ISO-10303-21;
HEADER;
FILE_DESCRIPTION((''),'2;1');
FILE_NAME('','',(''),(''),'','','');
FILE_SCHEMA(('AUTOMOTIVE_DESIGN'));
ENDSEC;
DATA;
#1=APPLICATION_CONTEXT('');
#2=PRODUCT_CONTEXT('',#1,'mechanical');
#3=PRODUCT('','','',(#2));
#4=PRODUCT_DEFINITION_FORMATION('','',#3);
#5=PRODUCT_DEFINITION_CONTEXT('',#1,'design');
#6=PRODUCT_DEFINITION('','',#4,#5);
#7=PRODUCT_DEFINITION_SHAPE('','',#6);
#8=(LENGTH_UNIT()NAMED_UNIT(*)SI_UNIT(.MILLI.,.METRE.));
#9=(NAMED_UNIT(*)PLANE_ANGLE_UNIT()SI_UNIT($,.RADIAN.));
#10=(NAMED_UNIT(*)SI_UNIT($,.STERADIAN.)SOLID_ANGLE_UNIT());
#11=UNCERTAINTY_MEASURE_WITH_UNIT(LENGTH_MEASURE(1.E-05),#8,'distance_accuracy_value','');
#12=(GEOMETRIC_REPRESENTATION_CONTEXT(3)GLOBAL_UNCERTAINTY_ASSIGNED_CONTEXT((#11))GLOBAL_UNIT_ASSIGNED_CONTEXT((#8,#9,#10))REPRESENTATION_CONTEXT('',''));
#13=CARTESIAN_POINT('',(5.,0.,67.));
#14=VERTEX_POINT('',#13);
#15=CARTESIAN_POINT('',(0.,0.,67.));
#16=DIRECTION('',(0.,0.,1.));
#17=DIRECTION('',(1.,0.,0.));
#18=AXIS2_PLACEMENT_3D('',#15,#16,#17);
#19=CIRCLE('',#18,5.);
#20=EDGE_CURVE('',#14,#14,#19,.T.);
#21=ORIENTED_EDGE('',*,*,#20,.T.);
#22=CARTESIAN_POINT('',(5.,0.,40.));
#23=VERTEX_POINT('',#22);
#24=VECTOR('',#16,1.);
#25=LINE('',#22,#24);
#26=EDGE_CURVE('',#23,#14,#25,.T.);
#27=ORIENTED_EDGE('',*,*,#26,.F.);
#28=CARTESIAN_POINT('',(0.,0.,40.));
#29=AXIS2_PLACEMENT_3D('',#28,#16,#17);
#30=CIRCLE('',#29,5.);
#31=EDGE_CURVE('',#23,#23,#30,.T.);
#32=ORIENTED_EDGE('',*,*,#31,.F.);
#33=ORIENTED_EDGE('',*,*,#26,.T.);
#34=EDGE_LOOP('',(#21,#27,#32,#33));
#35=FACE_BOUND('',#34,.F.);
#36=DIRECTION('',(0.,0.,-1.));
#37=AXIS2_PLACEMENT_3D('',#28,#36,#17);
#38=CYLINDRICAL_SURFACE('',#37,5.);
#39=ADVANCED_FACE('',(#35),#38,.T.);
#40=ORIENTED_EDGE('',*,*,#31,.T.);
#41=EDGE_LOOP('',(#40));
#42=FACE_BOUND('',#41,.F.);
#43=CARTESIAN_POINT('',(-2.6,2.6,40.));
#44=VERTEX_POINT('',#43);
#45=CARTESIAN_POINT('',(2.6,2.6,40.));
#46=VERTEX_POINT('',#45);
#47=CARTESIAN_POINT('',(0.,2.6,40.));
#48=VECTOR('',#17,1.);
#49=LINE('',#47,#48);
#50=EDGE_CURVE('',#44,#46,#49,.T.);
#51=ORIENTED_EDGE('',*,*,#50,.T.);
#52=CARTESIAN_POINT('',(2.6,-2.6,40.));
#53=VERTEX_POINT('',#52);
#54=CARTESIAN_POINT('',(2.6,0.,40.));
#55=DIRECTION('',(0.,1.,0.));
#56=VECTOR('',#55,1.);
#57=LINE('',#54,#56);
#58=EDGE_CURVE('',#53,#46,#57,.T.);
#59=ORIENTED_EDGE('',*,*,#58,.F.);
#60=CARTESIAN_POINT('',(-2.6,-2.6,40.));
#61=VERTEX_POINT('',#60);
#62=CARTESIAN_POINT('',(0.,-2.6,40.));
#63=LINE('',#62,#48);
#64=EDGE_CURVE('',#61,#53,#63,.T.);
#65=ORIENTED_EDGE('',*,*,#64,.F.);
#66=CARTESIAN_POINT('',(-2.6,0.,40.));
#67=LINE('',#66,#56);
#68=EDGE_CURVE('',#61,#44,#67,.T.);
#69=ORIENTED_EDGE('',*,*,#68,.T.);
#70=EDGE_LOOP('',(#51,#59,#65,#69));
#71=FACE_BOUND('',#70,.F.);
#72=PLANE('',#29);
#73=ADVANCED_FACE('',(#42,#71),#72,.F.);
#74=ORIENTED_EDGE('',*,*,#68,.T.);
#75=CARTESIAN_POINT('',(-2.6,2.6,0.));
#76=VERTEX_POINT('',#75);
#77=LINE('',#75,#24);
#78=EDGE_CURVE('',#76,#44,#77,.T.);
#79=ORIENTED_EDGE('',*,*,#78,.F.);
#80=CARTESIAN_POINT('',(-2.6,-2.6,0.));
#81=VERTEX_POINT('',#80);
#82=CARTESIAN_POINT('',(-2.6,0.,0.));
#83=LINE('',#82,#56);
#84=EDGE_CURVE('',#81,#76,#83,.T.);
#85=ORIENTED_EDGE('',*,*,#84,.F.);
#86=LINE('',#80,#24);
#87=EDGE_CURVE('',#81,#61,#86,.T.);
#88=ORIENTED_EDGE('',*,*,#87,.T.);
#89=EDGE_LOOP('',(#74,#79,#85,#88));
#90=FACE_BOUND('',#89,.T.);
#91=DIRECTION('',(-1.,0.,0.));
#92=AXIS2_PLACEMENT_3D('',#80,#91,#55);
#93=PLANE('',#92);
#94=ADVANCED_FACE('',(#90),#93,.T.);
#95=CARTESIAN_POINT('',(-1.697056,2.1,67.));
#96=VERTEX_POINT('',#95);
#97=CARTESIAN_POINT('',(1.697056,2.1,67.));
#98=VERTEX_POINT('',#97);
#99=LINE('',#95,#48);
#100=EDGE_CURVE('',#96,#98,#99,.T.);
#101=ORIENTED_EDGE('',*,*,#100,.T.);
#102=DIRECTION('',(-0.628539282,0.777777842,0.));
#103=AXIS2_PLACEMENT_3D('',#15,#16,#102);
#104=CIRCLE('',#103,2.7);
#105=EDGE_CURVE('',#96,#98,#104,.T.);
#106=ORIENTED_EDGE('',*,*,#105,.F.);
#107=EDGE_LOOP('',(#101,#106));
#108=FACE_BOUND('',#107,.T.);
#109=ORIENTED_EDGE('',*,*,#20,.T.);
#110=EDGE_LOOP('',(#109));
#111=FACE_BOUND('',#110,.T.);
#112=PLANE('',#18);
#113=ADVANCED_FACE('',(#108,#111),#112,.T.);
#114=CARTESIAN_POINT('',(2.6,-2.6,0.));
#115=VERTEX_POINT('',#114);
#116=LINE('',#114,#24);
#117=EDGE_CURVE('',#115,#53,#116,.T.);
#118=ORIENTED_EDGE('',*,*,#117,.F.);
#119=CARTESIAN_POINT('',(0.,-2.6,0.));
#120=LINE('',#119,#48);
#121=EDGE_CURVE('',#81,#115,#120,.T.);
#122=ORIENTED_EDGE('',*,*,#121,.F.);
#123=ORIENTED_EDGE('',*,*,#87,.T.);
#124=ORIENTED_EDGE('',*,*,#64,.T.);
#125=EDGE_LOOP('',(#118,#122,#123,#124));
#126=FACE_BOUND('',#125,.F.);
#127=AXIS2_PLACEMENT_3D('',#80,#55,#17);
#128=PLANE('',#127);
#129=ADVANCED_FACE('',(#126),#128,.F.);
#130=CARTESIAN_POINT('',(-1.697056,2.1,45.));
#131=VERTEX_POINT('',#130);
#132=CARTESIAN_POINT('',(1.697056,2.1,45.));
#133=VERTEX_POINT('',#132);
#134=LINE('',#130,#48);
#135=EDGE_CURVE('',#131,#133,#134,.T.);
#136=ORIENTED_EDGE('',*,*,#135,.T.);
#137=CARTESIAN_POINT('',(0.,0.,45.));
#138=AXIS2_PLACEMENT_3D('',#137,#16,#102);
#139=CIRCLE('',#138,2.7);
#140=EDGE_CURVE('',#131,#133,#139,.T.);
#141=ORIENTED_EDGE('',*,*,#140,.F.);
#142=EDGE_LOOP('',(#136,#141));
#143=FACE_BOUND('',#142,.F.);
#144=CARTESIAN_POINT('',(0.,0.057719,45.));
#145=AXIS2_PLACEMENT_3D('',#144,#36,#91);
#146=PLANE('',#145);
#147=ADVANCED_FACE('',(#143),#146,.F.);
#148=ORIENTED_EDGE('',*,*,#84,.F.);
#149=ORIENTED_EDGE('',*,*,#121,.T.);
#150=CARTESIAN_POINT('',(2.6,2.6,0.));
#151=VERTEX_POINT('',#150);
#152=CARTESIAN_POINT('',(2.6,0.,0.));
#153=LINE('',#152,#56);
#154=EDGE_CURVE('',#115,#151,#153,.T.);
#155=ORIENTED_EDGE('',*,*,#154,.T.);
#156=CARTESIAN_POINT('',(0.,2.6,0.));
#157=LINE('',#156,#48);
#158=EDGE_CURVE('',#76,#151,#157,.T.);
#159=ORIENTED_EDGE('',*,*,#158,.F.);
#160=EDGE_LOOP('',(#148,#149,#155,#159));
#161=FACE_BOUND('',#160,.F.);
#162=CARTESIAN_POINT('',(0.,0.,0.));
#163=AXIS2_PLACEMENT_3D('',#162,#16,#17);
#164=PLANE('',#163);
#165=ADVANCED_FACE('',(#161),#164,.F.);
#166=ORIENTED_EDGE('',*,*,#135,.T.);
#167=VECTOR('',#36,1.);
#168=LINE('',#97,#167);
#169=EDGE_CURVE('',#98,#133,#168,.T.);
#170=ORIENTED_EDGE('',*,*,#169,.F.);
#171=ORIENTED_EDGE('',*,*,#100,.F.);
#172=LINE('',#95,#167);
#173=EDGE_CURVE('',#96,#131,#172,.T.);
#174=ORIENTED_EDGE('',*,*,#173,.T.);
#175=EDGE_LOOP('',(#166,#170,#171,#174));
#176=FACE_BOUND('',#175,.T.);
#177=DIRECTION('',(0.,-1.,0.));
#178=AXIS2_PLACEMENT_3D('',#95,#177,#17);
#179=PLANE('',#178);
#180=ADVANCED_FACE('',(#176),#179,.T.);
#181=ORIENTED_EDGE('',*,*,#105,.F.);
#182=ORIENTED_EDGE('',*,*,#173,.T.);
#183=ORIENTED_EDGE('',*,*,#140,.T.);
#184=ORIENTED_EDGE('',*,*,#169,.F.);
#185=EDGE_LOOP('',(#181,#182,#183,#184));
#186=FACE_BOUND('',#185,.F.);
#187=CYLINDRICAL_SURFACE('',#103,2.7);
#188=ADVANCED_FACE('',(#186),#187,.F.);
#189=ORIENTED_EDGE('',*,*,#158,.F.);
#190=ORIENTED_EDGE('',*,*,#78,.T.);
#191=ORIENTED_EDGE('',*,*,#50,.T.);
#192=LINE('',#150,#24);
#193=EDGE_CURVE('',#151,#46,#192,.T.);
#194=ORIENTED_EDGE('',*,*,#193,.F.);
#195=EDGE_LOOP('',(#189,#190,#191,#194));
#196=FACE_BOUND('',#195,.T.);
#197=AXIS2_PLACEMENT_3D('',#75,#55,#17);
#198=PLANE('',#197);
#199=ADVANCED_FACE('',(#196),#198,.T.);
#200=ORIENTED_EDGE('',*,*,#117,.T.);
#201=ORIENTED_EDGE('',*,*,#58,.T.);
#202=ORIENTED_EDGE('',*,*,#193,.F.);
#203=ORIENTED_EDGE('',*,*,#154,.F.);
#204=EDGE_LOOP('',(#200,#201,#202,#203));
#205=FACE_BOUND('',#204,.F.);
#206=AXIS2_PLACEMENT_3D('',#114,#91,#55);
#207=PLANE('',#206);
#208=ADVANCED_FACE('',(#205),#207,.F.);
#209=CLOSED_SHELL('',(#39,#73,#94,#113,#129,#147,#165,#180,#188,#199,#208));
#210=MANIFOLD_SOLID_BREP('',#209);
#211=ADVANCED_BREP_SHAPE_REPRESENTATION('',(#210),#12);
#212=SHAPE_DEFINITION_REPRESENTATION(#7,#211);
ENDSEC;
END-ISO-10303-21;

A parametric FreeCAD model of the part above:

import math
import FreeCAD as App
import Part
import Sketcher
from FreeCAD import Vector

doc = App.newDocument("Part")
body = doc.addObject("PartDesign::Body", "Body")

# Sketch on XY plane
sketch1 = body.newObject("Sketcher::SketchObject", "Sketch")
sketch1.AttachmentSupport = (doc.getObject("XY_Plane"), [""])
sketch1.MapMode = "FlatFace"
sketch1.addGeometry([
    Part.LineSegment(Vector(-2.6, 2.6, 0), Vector(-2.6, -2.6, 0)),
    Part.LineSegment(Vector(-2.6, -2.6, 0), Vector(2.6, -2.6, 0)),
    Part.LineSegment(Vector(2.6, -2.6, 0), Vector(2.6, 2.6, 0)),
    Part.LineSegment(Vector(2.6, 2.6, 0), Vector(-2.6, 2.6, 0)),
], False)
sketch1.addConstraint([
    Sketcher.Constraint("Coincident", 0, 2, 1, 1),
    Sketcher.Constraint("Coincident", 1, 2, 2, 1),
    Sketcher.Constraint("Coincident", 2, 2, 3, 1),
    Sketcher.Constraint("Coincident", 3, 2, 0, 1),
    Sketcher.Constraint("Vertical", 0),
    Sketcher.Constraint("Horizontal", 1),
    Sketcher.Constraint("Vertical", 2),
    Sketcher.Constraint("Horizontal", 3),
    Sketcher.Constraint("Symmetric", 0, 2, 2, 2, -1, 1),
    Sketcher.Constraint("Equal", 3, 0),
    Sketcher.Constraint("DistanceX", 1, 1, 1, 2, 5.2),
])
pad1 = body.newObject("PartDesign::Pad", "Pad")
pad1.Profile = sketch1
pad1.Length = 40

# Sketch on XY plane
sketch2 = body.newObject("Sketcher::SketchObject", "Sketch001")
sketch2.AttachmentSupport = (doc.getObject("XY_Plane"), [""])
sketch2.MapMode = "FlatFace"
sketch2.AttachmentOffset = App.Placement(Vector(0, 0, 40), App.Rotation())
sketch2.addGeometry(Part.Circle(Vector(0, 0, 0), Vector(0, 0, 1), 5), False)
sketch2.addConstraint([
    Sketcher.Constraint("Coincident", 0, 3, -1, 1),
    Sketcher.Constraint("Diameter", 0, 10.0),
])
pad2 = body.newObject("PartDesign::Pad", "Pad001")
pad2.Profile = sketch2
pad2.Length = 27

# Sketch on XY plane
sketch3 = body.newObject("Sketcher::SketchObject", "Sketch002")
sketch3.AttachmentSupport = (doc.getObject("XY_Plane"), [""])
sketch3.MapMode = "FlatFace"
sketch3.AttachmentOffset = App.Placement(Vector(0, 0, 67), App.Rotation())
sketch3.addGeometry([
    Part.LineSegment(Vector(1.697056, 2.1, 0), Vector(-1.697056, 2.1, 0)),
    Part.ArcOfCircle(Part.Circle(Vector(0, 0, 0), Vector(0, 0, 1), 2.7), math.radians(128.942435), math.radians(411.057565)),
], False)
sketch3.addConstraint([
    Sketcher.Constraint("Coincident", 0, 1, 1, 2),
    Sketcher.Constraint("Coincident", 1, 1, 0, 2),
    Sketcher.Constraint("Horizontal", 0),
    Sketcher.Constraint("Coincident", 1, 3, -1, 1),
    Sketcher.Constraint("Radius", 1, 2.7),
    Sketcher.Constraint("DistanceY", -1, 1, 0, 1, 2.1),
])
pocket1 = body.newObject("PartDesign::Pocket", "Pocket")
pocket1.Profile = sketch3
pocket1.Length = 22

doc.recompute()
